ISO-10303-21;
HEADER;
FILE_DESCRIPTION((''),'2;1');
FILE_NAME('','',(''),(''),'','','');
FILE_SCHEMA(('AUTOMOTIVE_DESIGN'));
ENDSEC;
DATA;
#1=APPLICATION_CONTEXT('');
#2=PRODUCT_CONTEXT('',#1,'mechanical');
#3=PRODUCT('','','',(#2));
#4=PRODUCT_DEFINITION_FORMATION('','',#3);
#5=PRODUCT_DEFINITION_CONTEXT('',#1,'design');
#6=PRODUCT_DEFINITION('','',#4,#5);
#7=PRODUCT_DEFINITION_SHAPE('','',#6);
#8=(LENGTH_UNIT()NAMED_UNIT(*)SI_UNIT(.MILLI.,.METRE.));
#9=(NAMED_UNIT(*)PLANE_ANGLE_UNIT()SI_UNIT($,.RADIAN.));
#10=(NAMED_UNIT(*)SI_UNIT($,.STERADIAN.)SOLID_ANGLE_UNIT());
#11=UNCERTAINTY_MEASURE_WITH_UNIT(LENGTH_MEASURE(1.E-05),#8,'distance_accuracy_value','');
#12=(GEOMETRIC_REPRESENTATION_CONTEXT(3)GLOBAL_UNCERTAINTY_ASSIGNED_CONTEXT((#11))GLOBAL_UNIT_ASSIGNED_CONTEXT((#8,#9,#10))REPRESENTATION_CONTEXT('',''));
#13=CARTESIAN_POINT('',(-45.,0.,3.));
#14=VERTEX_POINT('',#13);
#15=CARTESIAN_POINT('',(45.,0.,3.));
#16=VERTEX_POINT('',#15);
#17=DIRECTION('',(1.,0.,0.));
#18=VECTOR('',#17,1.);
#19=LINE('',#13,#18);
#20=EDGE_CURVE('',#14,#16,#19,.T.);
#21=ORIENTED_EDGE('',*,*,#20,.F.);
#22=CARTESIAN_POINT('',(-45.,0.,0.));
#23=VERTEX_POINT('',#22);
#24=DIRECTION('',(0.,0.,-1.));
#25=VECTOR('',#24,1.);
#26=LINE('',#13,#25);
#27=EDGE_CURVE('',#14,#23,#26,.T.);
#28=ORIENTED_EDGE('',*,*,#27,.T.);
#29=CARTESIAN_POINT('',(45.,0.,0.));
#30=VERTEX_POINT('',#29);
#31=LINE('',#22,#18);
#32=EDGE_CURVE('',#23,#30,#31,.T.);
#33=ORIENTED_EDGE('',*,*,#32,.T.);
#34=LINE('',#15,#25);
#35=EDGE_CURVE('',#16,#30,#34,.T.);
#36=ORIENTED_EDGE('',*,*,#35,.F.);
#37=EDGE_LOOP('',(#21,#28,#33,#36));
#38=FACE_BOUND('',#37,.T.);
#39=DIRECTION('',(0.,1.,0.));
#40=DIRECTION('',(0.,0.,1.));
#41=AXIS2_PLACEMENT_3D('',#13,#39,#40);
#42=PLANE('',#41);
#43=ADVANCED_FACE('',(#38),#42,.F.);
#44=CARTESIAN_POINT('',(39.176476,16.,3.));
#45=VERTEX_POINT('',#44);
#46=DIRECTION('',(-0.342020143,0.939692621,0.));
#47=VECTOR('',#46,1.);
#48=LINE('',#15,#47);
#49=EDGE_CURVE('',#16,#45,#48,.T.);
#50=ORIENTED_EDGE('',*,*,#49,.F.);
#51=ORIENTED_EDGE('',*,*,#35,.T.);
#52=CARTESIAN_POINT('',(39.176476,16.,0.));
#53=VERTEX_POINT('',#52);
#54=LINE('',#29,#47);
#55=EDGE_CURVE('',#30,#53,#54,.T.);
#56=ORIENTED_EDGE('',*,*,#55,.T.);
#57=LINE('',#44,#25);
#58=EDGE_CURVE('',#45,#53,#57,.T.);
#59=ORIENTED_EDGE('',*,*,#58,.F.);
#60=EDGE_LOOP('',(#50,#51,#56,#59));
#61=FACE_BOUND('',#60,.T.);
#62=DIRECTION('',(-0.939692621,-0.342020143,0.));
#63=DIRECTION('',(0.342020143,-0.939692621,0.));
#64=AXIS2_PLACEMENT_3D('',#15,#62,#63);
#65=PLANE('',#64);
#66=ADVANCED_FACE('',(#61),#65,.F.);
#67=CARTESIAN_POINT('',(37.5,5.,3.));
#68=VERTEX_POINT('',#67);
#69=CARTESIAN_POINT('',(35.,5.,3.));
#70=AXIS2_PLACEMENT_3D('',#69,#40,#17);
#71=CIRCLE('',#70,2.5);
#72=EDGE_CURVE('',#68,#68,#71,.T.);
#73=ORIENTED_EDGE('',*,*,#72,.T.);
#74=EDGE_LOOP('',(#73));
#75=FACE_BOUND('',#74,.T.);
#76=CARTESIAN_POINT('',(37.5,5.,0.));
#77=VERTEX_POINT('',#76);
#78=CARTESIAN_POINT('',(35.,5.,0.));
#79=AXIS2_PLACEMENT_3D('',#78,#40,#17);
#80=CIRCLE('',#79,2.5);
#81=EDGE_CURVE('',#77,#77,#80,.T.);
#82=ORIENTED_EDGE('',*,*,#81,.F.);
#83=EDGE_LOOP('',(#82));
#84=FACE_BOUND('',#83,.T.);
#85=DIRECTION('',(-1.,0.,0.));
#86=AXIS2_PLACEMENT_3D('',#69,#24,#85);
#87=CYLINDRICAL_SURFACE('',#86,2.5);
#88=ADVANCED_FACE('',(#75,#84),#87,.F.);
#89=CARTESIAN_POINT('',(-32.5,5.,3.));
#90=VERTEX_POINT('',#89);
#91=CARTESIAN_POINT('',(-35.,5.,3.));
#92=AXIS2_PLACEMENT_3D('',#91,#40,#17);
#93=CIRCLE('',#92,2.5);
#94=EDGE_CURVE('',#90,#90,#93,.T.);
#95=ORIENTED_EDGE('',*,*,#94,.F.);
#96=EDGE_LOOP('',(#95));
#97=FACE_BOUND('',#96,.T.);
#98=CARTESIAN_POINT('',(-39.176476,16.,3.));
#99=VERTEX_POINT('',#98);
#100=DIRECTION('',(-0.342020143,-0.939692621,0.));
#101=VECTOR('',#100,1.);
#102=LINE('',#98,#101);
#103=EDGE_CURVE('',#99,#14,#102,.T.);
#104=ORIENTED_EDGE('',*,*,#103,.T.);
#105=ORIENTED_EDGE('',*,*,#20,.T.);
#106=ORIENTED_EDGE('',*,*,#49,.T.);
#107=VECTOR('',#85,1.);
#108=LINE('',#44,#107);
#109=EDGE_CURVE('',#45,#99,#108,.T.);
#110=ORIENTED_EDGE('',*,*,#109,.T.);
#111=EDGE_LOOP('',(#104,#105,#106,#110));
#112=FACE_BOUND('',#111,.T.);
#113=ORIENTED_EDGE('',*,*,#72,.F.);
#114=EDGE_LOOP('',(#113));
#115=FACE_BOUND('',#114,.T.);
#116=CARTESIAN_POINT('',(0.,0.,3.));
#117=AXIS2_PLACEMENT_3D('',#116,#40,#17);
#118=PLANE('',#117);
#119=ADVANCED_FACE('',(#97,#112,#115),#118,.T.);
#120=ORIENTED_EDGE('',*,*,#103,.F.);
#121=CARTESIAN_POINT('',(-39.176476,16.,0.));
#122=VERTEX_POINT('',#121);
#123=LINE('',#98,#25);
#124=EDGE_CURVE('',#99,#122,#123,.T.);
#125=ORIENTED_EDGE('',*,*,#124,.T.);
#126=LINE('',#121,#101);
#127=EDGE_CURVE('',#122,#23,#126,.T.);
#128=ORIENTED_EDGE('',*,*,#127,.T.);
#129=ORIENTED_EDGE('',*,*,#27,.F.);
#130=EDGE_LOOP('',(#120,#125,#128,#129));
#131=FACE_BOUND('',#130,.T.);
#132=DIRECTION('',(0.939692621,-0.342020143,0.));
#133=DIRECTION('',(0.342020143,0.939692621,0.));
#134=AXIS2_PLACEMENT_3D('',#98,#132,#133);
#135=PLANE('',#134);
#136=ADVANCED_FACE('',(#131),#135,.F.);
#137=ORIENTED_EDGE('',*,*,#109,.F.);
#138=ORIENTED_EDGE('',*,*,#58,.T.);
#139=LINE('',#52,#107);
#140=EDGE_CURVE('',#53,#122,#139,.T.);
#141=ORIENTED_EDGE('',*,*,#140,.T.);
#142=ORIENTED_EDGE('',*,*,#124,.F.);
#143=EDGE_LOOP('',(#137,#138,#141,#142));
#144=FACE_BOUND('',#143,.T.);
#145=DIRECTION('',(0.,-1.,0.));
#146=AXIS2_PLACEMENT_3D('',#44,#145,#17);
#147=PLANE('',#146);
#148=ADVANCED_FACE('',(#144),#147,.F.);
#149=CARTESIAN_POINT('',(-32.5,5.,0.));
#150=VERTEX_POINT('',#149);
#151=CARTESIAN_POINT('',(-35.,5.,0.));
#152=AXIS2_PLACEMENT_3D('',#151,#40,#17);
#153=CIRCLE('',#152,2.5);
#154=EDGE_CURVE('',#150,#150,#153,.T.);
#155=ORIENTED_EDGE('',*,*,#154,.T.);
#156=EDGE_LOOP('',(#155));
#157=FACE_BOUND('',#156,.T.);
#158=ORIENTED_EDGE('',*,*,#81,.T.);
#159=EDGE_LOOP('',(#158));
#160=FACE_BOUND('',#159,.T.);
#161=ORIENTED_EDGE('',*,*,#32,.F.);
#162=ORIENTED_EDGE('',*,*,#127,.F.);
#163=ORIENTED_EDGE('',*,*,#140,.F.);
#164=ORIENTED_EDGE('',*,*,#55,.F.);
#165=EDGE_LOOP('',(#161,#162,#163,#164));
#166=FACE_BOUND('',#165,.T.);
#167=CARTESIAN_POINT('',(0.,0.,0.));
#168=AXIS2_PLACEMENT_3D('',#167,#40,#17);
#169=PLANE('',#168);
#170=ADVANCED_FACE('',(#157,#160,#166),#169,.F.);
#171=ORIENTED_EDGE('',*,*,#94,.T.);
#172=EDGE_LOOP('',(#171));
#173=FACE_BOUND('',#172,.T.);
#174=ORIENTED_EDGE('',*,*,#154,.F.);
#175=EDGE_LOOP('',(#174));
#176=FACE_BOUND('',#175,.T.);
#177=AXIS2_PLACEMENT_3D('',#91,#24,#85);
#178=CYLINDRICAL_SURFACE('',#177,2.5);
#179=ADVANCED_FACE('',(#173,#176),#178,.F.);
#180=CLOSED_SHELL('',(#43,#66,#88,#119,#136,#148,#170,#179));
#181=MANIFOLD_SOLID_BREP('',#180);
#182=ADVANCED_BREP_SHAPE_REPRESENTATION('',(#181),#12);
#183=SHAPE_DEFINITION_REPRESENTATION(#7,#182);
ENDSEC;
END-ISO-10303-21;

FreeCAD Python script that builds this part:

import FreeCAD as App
import Part
import Sketcher

V = App.Vector
Q = App.Units.Quantity

doc = App.newDocument("Part")
body = doc.addObject("PartDesign::Body", "Body")

# Sketch on XY plane
sketch1 = body.newObject("Sketcher::SketchObject", "Sketch")
sketch1.AttachmentSupport = (doc.getObject("XY_Plane"), [""])
sketch1.MapMode = "FlatFace"
sketch1.addGeometry([
    Part.LineSegment(V(-45, 0, 0), V(45, 0, 0)),  # 0
    Part.LineSegment(V(45, 0, 0), V(39.176476, 16, 0)),  # 1
    Part.LineSegment(V(39.176476, 16, 0), V(-39.176476, 16, 0)),  # 2
    Part.LineSegment(V(-39.176476, 16, 0), V(-45, 0, 0)),  # 3
    Part.Circle(V(-35, 5, 0), V(0, 0, 1), 2.5),  # 4
    Part.Circle(V(35, 5, 0), V(0, 0, 1), 2.5),  # 5
], False)
sketch1.addConstraint([
    Sketcher.Constraint("Coincident", 0, 2, 1, 1),
    Sketcher.Constraint("Coincident", 1, 2, 2, 1),
    Sketcher.Constraint("Coincident", 2, 2, 3, 1),
    Sketcher.Constraint("Coincident", 3, 2, 0, 1),
    Sketcher.Constraint("Horizontal", 0),
    Sketcher.Constraint("Horizontal", 2),
    Sketcher.Constraint("Equal", 4, 5),
    Sketcher.Constraint("Symmetric", 0, 2, 3, 2, -1, 1),
    Sketcher.Constraint("Symmetric", 4, 3, 5, 3, -2),
    Sketcher.Constraint("Equal", 1, 3),
    Sketcher.Constraint("Diameter", 4, Q("5 mm")),
    Sketcher.Constraint("DistanceX", 0, 1, 0, 2, Q("90 mm")),
    Sketcher.Constraint("Angle", 1, Q("110 deg")),
    Sketcher.Constraint("DistanceX", 4, 3, -1, 1, Q("35 mm")),
    Sketcher.Constraint("DistanceY", -1, 1, 4, 3, Q("5 mm")),
    Sketcher.Constraint("DistanceY", -1, 1, 1, 2, Q("16 mm")),
])
pad1 = body.newObject("PartDesign::Pad", "Pad")
pad1.Profile = sketch1
pad1.Length = 3

doc.recompute()
